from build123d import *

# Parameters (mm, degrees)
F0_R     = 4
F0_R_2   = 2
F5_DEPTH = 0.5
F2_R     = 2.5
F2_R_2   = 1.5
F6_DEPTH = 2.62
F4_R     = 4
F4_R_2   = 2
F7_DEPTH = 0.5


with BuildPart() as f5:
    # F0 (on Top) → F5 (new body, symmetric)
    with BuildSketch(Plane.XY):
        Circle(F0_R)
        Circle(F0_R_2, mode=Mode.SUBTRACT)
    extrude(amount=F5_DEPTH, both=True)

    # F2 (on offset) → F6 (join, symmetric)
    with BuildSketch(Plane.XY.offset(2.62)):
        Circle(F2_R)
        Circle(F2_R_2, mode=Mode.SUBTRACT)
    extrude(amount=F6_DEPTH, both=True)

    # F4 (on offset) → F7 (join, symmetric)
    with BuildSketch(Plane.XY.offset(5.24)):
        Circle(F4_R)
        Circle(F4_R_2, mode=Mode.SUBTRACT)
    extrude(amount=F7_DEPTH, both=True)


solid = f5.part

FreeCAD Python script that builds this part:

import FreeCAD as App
import Part
import Sketcher

doc = App.newDocument("Part")
params = doc.addObject("Spreadsheet::Sheet", "Params")
for row, (alias, value) in enumerate([
    ("sketch1_diameter", "8 mm"),
    ("sketch1_diameter2", "4 mm"),
    ("pad1_length", "1 mm"),
    ("sketch2_diameter", "5 mm"),
    ("sketch2_diameter2", "3 mm"),
    ("pad2_length", "5.24 mm"),
    ("sketch3_diameter", "8 mm"),
    ("sketch3_diameter2", "4 mm"),
    ("pad3_length", "1 mm"),
], start=1):
    params.set(f"A{row}", alias)
    params.set(f"B{row}", "=" + value)
    params.setAlias(f"B{row}", alias)

body = doc.addObject("PartDesign::Body", "Body")

# Sketch on XY plane
sketch1 = doc.addObject("Sketcher::SketchObject", "Sketch")
body.addObject(sketch1)
sketch1.AttachmentSupport = (doc.XY_Plane, [""])
sketch1.MapMode = "FlatFace"
sketch1.addGeometry([
    Part.Circle(App.Vector(0, 0, 0), App.Vector(0, 0, 1), 4),
    Part.Circle(App.Vector(0, 0, 0), App.Vector(0, 0, 1), 2),
], False)
sketch1.addConstraint([
    Sketcher.Constraint("Coincident", 0, 3, -1, 1),
    Sketcher.Constraint("Coincident", 1, 3, -1, 1),
    Sketcher.Constraint("Diameter", 0, 8.0),
    Sketcher.Constraint("Diameter", 1, 4.0),
])
sketch1.setExpression("Constraints[2]", "Params.sketch1_diameter")
sketch1.setExpression("Constraints[3]", "Params.sketch1_diameter2")
pad1 = doc.addObject("PartDesign::Pad", "Pad")
body.addObject(pad1)
pad1.Profile = sketch1
pad1.setExpression("Length", "Params.pad1_length")
pad1.Midplane = True

# Sketch on XY plane
sketch2 = doc.addObject("Sketcher::SketchObject", "Sketch001")
body.addObject(sketch2)
sketch2.AttachmentSupport = (doc.XY_Plane, [""])
sketch2.MapMode = "FlatFace"
sketch2.AttachmentOffset = App.Placement(App.Vector(0, 0, 2.62), App.Rotation())
sketch2.addGeometry([
    Part.Circle(App.Vector(0, 0, 0), App.Vector(0, 0, 1), 2.5),
    Part.Circle(App.Vector(0, 0, 0), App.Vector(0, 0, 1), 1.5),
], False)
sketch2.addConstraint([
    Sketcher.Constraint("Coincident", 0, 3, -1, 1),
    Sketcher.Constraint("Coincident", 1, 3, -1, 1),
    Sketcher.Constraint("Diameter", 0, 5.0),
    Sketcher.Constraint("Diameter", 1, 3.0),
])
sketch2.setExpression("Constraints[2]", "Params.sketch2_diameter")
sketch2.setExpression("Constraints[3]", "Params.sketch2_diameter2")
pad2 = doc.addObject("PartDesign::Pad", "Pad001")
body.addObject(pad2)
pad2.Profile = sketch2
pad2.setExpression("Length", "Params.pad2_length")
pad2.Midplane = True

# Sketch on XY plane
sketch3 = doc.addObject("Sketcher::SketchObject", "Sketch002")
body.addObject(sketch3)
sketch3.AttachmentSupport = (doc.XY_Plane, [""])
sketch3.MapMode = "FlatFace"
sketch3.AttachmentOffset = App.Placement(App.Vector(0, 0, 5.24), App.Rotation())
sketch3.addGeometry([
    Part.Circle(App.Vector(0, 0, 0), App.Vector(0, 0, 1), 4),
    Part.Circle(App.Vector(0, 0, 0), App.Vector(0, 0, 1), 2),
], False)
sketch3.addConstraint([
    Sketcher.Constraint("Coincident", 0, 3, -1, 1),
    Sketcher.Constraint("Coincident", 1, 3, -1, 1),
    Sketcher.Constraint("Diameter", 0, 8.0),
    Sketcher.Constraint("Diameter", 1, 4.0),
])
sketch3.setExpression("Constraints[2]", "Params.sketch3_diameter")
sketch3.setExpression("Constraints[3]", "Params.sketch3_diameter2")
pad3 = doc.addObject("PartDesign::Pad", "Pad002")
body.addObject(pad3)
pad3.Profile = sketch3
pad3.setExpression("Length", "Params.pad3_length")
pad3.Midplane = True

doc.recompute()
